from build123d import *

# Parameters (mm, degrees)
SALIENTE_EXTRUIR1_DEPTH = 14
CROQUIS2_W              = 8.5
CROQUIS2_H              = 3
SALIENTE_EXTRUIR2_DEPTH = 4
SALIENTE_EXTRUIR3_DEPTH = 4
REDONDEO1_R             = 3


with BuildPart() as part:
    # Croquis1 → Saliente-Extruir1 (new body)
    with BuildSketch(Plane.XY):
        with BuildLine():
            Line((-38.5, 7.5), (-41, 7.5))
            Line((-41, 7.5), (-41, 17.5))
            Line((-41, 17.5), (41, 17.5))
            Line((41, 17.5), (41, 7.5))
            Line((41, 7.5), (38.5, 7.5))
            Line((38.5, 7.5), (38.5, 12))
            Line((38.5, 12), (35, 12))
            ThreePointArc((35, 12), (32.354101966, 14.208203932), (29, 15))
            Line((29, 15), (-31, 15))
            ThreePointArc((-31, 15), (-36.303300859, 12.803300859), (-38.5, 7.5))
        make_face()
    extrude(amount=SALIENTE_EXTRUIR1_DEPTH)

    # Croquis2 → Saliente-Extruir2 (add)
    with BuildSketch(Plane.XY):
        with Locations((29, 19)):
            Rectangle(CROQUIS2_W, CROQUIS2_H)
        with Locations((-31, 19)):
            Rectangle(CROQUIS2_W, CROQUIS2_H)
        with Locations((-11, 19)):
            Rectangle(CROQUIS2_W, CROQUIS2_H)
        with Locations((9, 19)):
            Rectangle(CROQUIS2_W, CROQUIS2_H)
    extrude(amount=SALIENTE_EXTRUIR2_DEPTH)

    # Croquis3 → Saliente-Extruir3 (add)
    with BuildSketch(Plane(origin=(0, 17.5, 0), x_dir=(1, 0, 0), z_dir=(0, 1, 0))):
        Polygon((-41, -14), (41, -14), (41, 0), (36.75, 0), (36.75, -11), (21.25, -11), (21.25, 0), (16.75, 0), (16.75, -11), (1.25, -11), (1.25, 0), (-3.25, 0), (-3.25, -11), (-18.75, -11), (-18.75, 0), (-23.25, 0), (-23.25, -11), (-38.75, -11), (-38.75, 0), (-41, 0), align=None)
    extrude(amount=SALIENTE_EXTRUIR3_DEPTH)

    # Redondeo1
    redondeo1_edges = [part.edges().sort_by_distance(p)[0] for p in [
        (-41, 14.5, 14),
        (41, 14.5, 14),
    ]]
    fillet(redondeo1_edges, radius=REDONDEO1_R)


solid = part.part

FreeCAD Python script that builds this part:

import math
import FreeCAD as App
import Part
import Sketcher
Q = App.Units.Quantity


def edges_at(feature, points):
    """Names of the edges that pass closest to the given points."""
    edges = feature.Shape.Edges
    near = lambda p: min(range(len(edges)), key=lambda i: edges[i].distToShape(Part.Vertex(*p))[0])
    return sorted({f"Edge{near(p) + 1}" for p in points})


def add_polygon(sketch, points):
    """Adds a closed chain of lines whose ends are joined by coincident constraints."""
    first, n = sketch.GeometryCount, len(points)
    for a, b in zip(points, points[1:] + points[:1]):
        sketch.addGeometry(Part.LineSegment(App.Vector(*a, 0), App.Vector(*b, 0)), False)
    for i in range(n):
        sketch.addConstraint(Sketcher.Constraint("Coincident", first + i, 2, first + (i + 1) % n, 1))

doc = App.newDocument("Part")
body = doc.addObject("PartDesign::Body", "Body")

sketch1 = body.newObject("Sketcher::SketchObject", "Sketch")
sketch1.AttachmentSupport = (doc.getObject("XY_Plane"), [""])
sketch1.MapMode = "FlatFace"
sketch1.addGeometry([
    Part.LineSegment(App.Vector(-41, 7.5, 0), App.Vector(-38.5, 7.5, 0)),
    Part.ArcOfCircle(Part.Circle(App.Vector(-31, 7.5, 0), App.Vector(0, 0, 1), 7.5), math.radians(90), math.radians(180)),
    Part.LineSegment(App.Vector(-31, 15, 0), App.Vector(29, 15, 0)),
    Part.ArcOfCircle(Part.Circle(App.Vector(29, 7.5, 0), App.Vector(0, 0, 1), 7.5), math.radians(37), math.radians(90)),
    Part.LineSegment(App.Vector(35, 12, 0), App.Vector(38.5, 12, 0)),
    Part.LineSegment(App.Vector(38.5, 12, 0), App.Vector(38.5, 7.5, 0)),
    Part.LineSegment(App.Vector(38.5, 7.5, 0), App.Vector(41, 7.5, 0)),
    Part.LineSegment(App.Vector(41, 7.5, 0), App.Vector(41, 17.5, 0)),
    Part.LineSegment(App.Vector(41, 17.5, 0), App.Vector(-41, 17.5, 0)),
    Part.LineSegment(App.Vector(-41, 17.5, 0), App.Vector(-41, 7.5, 0)),
], False)
sketch1.addConstraint([
    Sketcher.Constraint("Coincident", 0, 2, 1, 2),
    Sketcher.Constraint("Tangent", 1, 1, 2, 1),
    Sketcher.Constraint("Tangent", 2, 2, 3, 2),
    Sketcher.Constraint("Coincident", 3, 1, 4, 1),
    Sketcher.Constraint("Coincident", 4, 2, 5, 1),
    Sketcher.Constraint("Coincident", 5, 2, 6, 1),
    Sketcher.Constraint("Coincident", 6, 2, 7, 1),
    Sketcher.Constraint("Coincident", 7, 2, 8, 1),
    Sketcher.Constraint("Coincident", 8, 2, 9, 1),
    Sketcher.Constraint("Coincident", 9, 2, 0, 1),
    Sketcher.Constraint("Horizontal", 0),
    Sketcher.Constraint("Horizontal", 2),
    Sketcher.Constraint("Horizontal", 4),
    Sketcher.Constraint("Vertical", 5),
    Sketcher.Constraint("Horizontal", 6),
    Sketcher.Constraint("Vertical", 7),
    Sketcher.Constraint("Horizontal", 8),
    Sketcher.Constraint("Vertical", 9),
    Sketcher.Constraint("Equal", 1, 3),
    Sketcher.Constraint("Symmetric", 0, 2, 5, 2, -2),
    Sketcher.Constraint("Horizontal", 3, 3, 0, 2),
    Sketcher.Constraint("Equal", 0, 6),
    Sketcher.Constraint("Radius", 1, Q("7.5 mm")),
    Sketcher.Constraint("DistanceX", 2, 1, 2, 2, Q("60 mm")),
    Sketcher.Constraint("DistanceX", 8, 2, 8, 1, Q("82 mm")),
    Sketcher.Constraint("DistanceY", 7, 1, 7, 2, Q("10 mm")),
    Sketcher.Constraint("DistanceX", 0, 1, 0, 2, Q("2.5 mm")),
    Sketcher.Constraint("DistanceX", 4, 1, 4, 2, Q("3.5 mm")),
    Sketcher.Constraint("DistanceY", -1, 1, 1, 1, Q("15 mm")),
])
pad1 = body.newObject("PartDesign::Pad", "Pad")
pad1.Profile = sketch1
pad1.Length = 14

sketch2 = body.newObject("Sketcher::SketchObject", "Sketch001")
sketch2.AttachmentSupport = (doc.getObject("XY_Plane"), [""])
sketch2.MapMode = "FlatFace"
add_polygon(sketch2, [(24.8, 20.5), (24.8, 17.5), (33.2, 17.5), (33.2, 20.5)])
add_polygon(sketch2, [(-35.2, 20.5), (-35.2, 17.5), (-26.8, 17.5), (-26.8, 20.5)])
add_polygon(sketch2, [(-15.2, 20.5), (-15.2, 17.5), (-6.8, 17.5), (-6.8, 20.5)])
add_polygon(sketch2, [(4.8, 20.5), (4.8, 17.5), (13.2, 17.5), (13.2, 20.5)])
sketch2.addConstraint([
    Sketcher.Constraint("Vertical", 0),
    Sketcher.Constraint("Horizontal", 1),
    Sketcher.Constraint("Vertical", 2),
    Sketcher.Constraint("Horizontal", 3),
    Sketcher.Constraint("Vertical", 4),
    Sketcher.Constraint("Horizontal", 5),
    Sketcher.Constraint("Vertical", 6),
    Sketcher.Constraint("Horizontal", 7),
    Sketcher.Constraint("Vertical", 8),
    Sketcher.Constraint("Horizontal", 9),
    Sketcher.Constraint("Vertical", 10),
    Sketcher.Constraint("Horizontal", 11),
    Sketcher.Constraint("Vertical", 12),
    Sketcher.Constraint("Horizontal", 13),
    Sketcher.Constraint("Vertical", 14),
    Sketcher.Constraint("Horizontal", 15),
    Sketcher.Constraint("Horizontal", 1, 2, 4, 2),
    Sketcher.Constraint("Horizontal", 3, 2, 6, 2),
    Sketcher.Constraint("Horizontal", 5, 2, 8, 2),
    Sketcher.Constraint("Horizontal", 7, 2, 10, 2),
    Sketcher.Constraint("Horizontal", 9, 2, 12, 2),
    Sketcher.Constraint("Horizontal", 11, 2, 14, 2),
    Sketcher.Constraint("Equal", 3, 5),
    Sketcher.Constraint("Equal", 7, 9),
    Sketcher.Constraint("Equal", 11, 13),
    Sketcher.Constraint("DistanceY", 0, 2, 0, 1, Q("3 mm")),
    Sketcher.Constraint("DistanceX", 1, 1, 1, 2, Q("8.5 mm")),
    Sketcher.Constraint("DistanceX", 4, 2, 0, 2, Q("60 mm")),
    Sketcher.Constraint("DistanceX", 4, 2, 8, 2, Q("20 mm")),
    Sketcher.Constraint("DistanceX", 12, 2, 0, 2, Q("20 mm")),
    Sketcher.Constraint("DistanceY", -1, 1, 0, 2, Q("17.5 mm")),
    Sketcher.Constraint("DistanceX", -1, 1, 0, 2, Q("24.75 mm")),
])
pad2 = body.newObject("PartDesign::Pad", "Pad001")
pad2.Profile = sketch2
pad2.Length = 4

sketch3 = body.newObject("Sketcher::SketchObject", "Sketch002")
sketch3.AttachmentSupport = (doc.getObject("XZ_Plane"), [""])
sketch3.MapMode = "FlatFace"
sketch3.AttachmentOffset = App.Placement(App.Vector(0, 0, -17.5), App.Rotation())
add_polygon(sketch3, [(-41, 14), (41, 14), (41, 0), (36.8, 0), (36.8, 11), (21.2, 11), (21.2, 0), (16.8, 0), (16.8, 11), (1.2, 11), (1.2, 0), (-3.2, 0), (-3.2, 11), (-18.8, 11), (-18.8, 0), (-23.2, 0), (-23.2, 11), (-38.8, 11), (-38.8, 0), (-41, 0)])
sketch3.addConstraint([
    Sketcher.Constraint("Horizontal", 0),
    Sketcher.Constraint("Vertical", 1),
    Sketcher.Constraint("Horizontal", 2),
    Sketcher.Constraint("Vertical", 3),
    Sketcher.Constraint("Horizontal", 4),
    Sketcher.Constraint("Vertical", 5),
    Sketcher.Constraint("Horizontal", 6),
    Sketcher.Constraint("Vertical", 7),
    Sketcher.Constraint("Horizontal", 8),
    Sketcher.Constraint("Vertical", 9),
    Sketcher.Constraint("Horizontal", 10),
    Sketcher.Constraint("Vertical", 11),
    Sketcher.Constraint("Horizontal", 12),
    Sketcher.Constraint("Vertical", 13),
    Sketcher.Constraint("Horizontal", 14),
    Sketcher.Constraint("Vertical", 15),
    Sketcher.Constraint("Horizontal", 16),
    Sketcher.Constraint("Vertical", 17),
    Sketcher.Constraint("Horizontal", 18),
    Sketcher.Constraint("Vertical", 19),
    Sketcher.Constraint("Symmetric", 1, 2, 18, 2, -1, 1),
    Sketcher.Constraint("PointOnObject", 1, 2, -1),
    Sketcher.Constraint("PointOnObject", 5, 2, -1),
    Sketcher.Constraint("PointOnObject", 9, 2, -1),
    Sketcher.Constraint("PointOnObject", 13, 2, -1),
    Sketcher.Constraint("Horizontal", 4, 2, 7, 2),
    Sketcher.Constraint("Horizontal", 8, 2, 11, 2),
    Sketcher.Constraint("Horizontal", 12, 2, 15, 2),
    Sketcher.Constraint("Equal", 4, 8),
    Sketcher.Constraint("Equal", 6, 10),
    Sketcher.Constraint("Equal", 8, 12),
    Sketcher.Constraint("Equal", 10, 14),
    Sketcher.Constraint("Equal", 12, 16),
    Sketcher.Constraint("DistanceX", 0, 1, 0, 2, Q("82 mm")),
    Sketcher.Constraint("DistanceY", 1, 2, 1, 1, Q("14 mm")),
    Sketcher.Constraint("DistanceY", 3, 1, 3, 2, Q("11 mm")),
    Sketcher.Constraint("DistanceX", 4, 2, 4, 1, Q("15.5 mm")),
    Sketcher.Constraint("DistanceX", 6, 2, 6, 1, Q("4.5 mm")),
    Sketcher.Constraint("DistanceX", 2, 2, 2, 1, Q("4.25 mm")),
])
pad3 = body.newObject("PartDesign::Pad", "Pad002")
pad3.Profile = sketch3
pad3.Length = 4
pad3.Reversed = True
doc.recompute()

fillet = body.newObject("PartDesign::Fillet", "Fillet")
fillet.Base = (pad3, edges_at(pad3, [(-41, 14.5, 14), (41, 14.5, 14)]))
fillet.Radius = 3

doc.recompute()
